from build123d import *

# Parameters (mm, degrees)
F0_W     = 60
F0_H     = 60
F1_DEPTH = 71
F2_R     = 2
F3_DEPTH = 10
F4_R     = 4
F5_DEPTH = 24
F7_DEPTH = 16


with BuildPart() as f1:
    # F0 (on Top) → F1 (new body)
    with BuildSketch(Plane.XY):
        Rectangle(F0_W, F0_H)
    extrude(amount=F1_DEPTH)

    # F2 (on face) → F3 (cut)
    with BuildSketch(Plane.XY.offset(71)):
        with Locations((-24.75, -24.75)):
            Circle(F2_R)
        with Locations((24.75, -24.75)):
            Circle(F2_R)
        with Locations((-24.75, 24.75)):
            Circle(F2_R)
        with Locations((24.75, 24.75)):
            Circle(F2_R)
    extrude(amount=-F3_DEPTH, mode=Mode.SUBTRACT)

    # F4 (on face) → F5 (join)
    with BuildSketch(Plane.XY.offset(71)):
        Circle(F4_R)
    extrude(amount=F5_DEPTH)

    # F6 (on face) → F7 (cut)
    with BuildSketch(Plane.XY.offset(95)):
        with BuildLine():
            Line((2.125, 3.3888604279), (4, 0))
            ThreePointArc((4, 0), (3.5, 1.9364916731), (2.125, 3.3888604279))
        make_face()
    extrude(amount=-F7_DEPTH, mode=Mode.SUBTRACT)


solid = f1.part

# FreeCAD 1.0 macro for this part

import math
import FreeCAD as App
import Part
import Sketcher

V = App.Vector

doc = App.newDocument("Part")
params = doc.addObject("Spreadsheet::Sheet", "Params")
for row, (alias, value) in enumerate([
    ("sketch1_width", "60 mm"),
    ("pad1_length", "71 mm"),
    ("sketch2_diameter", "4 mm"),
    ("pocket1_length", "10 mm"),
    ("sketch3_diameter", "8 mm"),
    ("pad2_length", "24 mm"),
    ("sketch4_radius", "4 mm"),
    ("pocket2_length", "16 mm"),
], start=1):
    params.set(f"A{row}", alias)
    params.set(f"B{row}", "=" + value)
    params.setAlias(f"B{row}", alias)

body = doc.addObject("PartDesign::Body", "Body")

# Sketch on XY plane
sketch1 = body.newObject("Sketcher::SketchObject", "Sketch")
sketch1.AttachmentSupport = (doc.getObject("XY_Plane"), [""])
sketch1.MapMode = "FlatFace"
sketch1.addGeometry([
    Part.LineSegment(V(-30, 30, 0), V(-30, -30, 0)),
    Part.LineSegment(V(-30, -30, 0), V(30, -30, 0)),
    Part.LineSegment(V(30, -30, 0), V(30, 30, 0)),
    Part.LineSegment(V(30, 30, 0), V(-30, 30, 0)),
], False)
sketch1.addConstraint([
    Sketcher.Constraint("Coincident", 0, 2, 1, 1),
    Sketcher.Constraint("Coincident", 1, 2, 2, 1),
    Sketcher.Constraint("Coincident", 2, 2, 3, 1),
    Sketcher.Constraint("Coincident", 3, 2, 0, 1),
    Sketcher.Constraint("Vertical", 0),
    Sketcher.Constraint("Horizontal", 1),
    Sketcher.Constraint("Vertical", 2),
    Sketcher.Constraint("Horizontal", 3),
    Sketcher.Constraint("Symmetric", 0, 2, 2, 2, -1, 1),
    Sketcher.Constraint("Equal", 3, 0),
    Sketcher.Constraint("DistanceX", 1, 1, 1, 2, 60.0),
])
sketch1.setExpression("Constraints[10]", "Params.sketch1_width")
pad1 = body.newObject("PartDesign::Pad", "Pad")
pad1.Profile = sketch1
pad1.setExpression("Length", "Params.pad1_length")

# Sketch on XY plane
sketch2 = body.newObject("Sketcher::SketchObject", "Sketch001")
sketch2.AttachmentSupport = (doc.getObject("XY_Plane"), [""])
sketch2.MapMode = "FlatFace"
sketch2.AttachmentOffset = App.Placement(V(0, 0, 71), App.Rotation())
sketch2.addGeometry([
    Part.Circle(V(-24.8, -24.8, 0), V(0, 0, 1), 2),
    Part.Circle(V(24.8, -24.8, 0), V(0, 0, 1), 2),
    Part.Circle(V(-24.8, 24.8, 0), V(0, 0, 1), 2),
    Part.Circle(V(24.8, 24.8, 0), V(0, 0, 1), 2),
], False)
sketch2.addConstraint([
    Sketcher.Constraint("Equal", 0, 1),
    Sketcher.Constraint("Equal", 1, 2),
    Sketcher.Constraint("Equal", 2, 3),
    Sketcher.Constraint("Symmetric", 1, 3, 2, 3, -1, 1),
    Sketcher.Constraint("Symmetric", 0, 3, 3, 3, -1, 1),
    Sketcher.Constraint("Symmetric", 0, 3, 1, 3, -2),
    Sketcher.Constraint("Diameter", 0, 4.0),
    Sketcher.Constraint("DistanceX", 0, 3, 1, 3, 49.5),
    Sketcher.Constraint("DistanceY", 0, 3, 2, 3, 49.5),
])
sketch2.setExpression("Constraints[6]", "Params.sketch2_diameter")
pocket1 = body.newObject("PartDesign::Pocket", "Pocket")
pocket1.Profile = sketch2
pocket1.setExpression("Length", "Params.pocket1_length")

# Sketch on XY plane
sketch3 = body.newObject("Sketcher::SketchObject", "Sketch002")
sketch3.AttachmentSupport = (doc.getObject("XY_Plane"), [""])
sketch3.MapMode = "FlatFace"
sketch3.AttachmentOffset = App.Placement(V(0, 0, 71), App.Rotation())
sketch3.addGeometry(Part.Circle(V(0, 0, 0), V(0, 0, 1), 4), False)
sketch3.addConstraint([
    Sketcher.Constraint("Coincident", 0, 3, -1, 1),
    Sketcher.Constraint("Diameter", 0, 8.0),
])
sketch3.setExpression("Constraints[1]", "Params.sketch3_diameter")
pad2 = body.newObject("PartDesign::Pad", "Pad001")
pad2.Profile = sketch3
pad2.setExpression("Length", "Params.pad2_length")

# Sketch on XY plane
sketch4 = body.newObject("Sketcher::SketchObject", "Sketch003")
sketch4.AttachmentSupport = (doc.getObject("XY_Plane"), [""])
sketch4.MapMode = "FlatFace"
sketch4.AttachmentOffset = App.Placement(V(0, 0, 95), App.Rotation())
sketch4.addGeometry([
    Part.LineSegment(V(2.1, 3.4, 0), V(4, 0, 0)),
    Part.ArcOfCircle(Part.Circle(V(0, 0, 0), V(0, 0, 1), 4), math.radians(0), math.radians(58)),
], False)
sketch4.addConstraint([
    Sketcher.Constraint("Coincident", 0, 1, 1, 2),
    Sketcher.Constraint("Coincident", 1, 1, 0, 2),
    Sketcher.Constraint("Coincident", 1, 3, -1, 1),
    Sketcher.Constraint("PointOnObject", 1, 1, -1),
    Sketcher.Constraint("Radius", 1, 4.0),
    Sketcher.Constraint("DistanceX", -1, 1, 0, 1, 2.125),
])
sketch4.setExpression("Constraints[4]", "Params.sketch4_radius")
pocket2 = body.newObject("PartDesign::Pocket", "Pocket001")
pocket2.Profile = sketch4
pocket2.setExpression("Length", "Params.pocket2_length")

doc.recompute()
